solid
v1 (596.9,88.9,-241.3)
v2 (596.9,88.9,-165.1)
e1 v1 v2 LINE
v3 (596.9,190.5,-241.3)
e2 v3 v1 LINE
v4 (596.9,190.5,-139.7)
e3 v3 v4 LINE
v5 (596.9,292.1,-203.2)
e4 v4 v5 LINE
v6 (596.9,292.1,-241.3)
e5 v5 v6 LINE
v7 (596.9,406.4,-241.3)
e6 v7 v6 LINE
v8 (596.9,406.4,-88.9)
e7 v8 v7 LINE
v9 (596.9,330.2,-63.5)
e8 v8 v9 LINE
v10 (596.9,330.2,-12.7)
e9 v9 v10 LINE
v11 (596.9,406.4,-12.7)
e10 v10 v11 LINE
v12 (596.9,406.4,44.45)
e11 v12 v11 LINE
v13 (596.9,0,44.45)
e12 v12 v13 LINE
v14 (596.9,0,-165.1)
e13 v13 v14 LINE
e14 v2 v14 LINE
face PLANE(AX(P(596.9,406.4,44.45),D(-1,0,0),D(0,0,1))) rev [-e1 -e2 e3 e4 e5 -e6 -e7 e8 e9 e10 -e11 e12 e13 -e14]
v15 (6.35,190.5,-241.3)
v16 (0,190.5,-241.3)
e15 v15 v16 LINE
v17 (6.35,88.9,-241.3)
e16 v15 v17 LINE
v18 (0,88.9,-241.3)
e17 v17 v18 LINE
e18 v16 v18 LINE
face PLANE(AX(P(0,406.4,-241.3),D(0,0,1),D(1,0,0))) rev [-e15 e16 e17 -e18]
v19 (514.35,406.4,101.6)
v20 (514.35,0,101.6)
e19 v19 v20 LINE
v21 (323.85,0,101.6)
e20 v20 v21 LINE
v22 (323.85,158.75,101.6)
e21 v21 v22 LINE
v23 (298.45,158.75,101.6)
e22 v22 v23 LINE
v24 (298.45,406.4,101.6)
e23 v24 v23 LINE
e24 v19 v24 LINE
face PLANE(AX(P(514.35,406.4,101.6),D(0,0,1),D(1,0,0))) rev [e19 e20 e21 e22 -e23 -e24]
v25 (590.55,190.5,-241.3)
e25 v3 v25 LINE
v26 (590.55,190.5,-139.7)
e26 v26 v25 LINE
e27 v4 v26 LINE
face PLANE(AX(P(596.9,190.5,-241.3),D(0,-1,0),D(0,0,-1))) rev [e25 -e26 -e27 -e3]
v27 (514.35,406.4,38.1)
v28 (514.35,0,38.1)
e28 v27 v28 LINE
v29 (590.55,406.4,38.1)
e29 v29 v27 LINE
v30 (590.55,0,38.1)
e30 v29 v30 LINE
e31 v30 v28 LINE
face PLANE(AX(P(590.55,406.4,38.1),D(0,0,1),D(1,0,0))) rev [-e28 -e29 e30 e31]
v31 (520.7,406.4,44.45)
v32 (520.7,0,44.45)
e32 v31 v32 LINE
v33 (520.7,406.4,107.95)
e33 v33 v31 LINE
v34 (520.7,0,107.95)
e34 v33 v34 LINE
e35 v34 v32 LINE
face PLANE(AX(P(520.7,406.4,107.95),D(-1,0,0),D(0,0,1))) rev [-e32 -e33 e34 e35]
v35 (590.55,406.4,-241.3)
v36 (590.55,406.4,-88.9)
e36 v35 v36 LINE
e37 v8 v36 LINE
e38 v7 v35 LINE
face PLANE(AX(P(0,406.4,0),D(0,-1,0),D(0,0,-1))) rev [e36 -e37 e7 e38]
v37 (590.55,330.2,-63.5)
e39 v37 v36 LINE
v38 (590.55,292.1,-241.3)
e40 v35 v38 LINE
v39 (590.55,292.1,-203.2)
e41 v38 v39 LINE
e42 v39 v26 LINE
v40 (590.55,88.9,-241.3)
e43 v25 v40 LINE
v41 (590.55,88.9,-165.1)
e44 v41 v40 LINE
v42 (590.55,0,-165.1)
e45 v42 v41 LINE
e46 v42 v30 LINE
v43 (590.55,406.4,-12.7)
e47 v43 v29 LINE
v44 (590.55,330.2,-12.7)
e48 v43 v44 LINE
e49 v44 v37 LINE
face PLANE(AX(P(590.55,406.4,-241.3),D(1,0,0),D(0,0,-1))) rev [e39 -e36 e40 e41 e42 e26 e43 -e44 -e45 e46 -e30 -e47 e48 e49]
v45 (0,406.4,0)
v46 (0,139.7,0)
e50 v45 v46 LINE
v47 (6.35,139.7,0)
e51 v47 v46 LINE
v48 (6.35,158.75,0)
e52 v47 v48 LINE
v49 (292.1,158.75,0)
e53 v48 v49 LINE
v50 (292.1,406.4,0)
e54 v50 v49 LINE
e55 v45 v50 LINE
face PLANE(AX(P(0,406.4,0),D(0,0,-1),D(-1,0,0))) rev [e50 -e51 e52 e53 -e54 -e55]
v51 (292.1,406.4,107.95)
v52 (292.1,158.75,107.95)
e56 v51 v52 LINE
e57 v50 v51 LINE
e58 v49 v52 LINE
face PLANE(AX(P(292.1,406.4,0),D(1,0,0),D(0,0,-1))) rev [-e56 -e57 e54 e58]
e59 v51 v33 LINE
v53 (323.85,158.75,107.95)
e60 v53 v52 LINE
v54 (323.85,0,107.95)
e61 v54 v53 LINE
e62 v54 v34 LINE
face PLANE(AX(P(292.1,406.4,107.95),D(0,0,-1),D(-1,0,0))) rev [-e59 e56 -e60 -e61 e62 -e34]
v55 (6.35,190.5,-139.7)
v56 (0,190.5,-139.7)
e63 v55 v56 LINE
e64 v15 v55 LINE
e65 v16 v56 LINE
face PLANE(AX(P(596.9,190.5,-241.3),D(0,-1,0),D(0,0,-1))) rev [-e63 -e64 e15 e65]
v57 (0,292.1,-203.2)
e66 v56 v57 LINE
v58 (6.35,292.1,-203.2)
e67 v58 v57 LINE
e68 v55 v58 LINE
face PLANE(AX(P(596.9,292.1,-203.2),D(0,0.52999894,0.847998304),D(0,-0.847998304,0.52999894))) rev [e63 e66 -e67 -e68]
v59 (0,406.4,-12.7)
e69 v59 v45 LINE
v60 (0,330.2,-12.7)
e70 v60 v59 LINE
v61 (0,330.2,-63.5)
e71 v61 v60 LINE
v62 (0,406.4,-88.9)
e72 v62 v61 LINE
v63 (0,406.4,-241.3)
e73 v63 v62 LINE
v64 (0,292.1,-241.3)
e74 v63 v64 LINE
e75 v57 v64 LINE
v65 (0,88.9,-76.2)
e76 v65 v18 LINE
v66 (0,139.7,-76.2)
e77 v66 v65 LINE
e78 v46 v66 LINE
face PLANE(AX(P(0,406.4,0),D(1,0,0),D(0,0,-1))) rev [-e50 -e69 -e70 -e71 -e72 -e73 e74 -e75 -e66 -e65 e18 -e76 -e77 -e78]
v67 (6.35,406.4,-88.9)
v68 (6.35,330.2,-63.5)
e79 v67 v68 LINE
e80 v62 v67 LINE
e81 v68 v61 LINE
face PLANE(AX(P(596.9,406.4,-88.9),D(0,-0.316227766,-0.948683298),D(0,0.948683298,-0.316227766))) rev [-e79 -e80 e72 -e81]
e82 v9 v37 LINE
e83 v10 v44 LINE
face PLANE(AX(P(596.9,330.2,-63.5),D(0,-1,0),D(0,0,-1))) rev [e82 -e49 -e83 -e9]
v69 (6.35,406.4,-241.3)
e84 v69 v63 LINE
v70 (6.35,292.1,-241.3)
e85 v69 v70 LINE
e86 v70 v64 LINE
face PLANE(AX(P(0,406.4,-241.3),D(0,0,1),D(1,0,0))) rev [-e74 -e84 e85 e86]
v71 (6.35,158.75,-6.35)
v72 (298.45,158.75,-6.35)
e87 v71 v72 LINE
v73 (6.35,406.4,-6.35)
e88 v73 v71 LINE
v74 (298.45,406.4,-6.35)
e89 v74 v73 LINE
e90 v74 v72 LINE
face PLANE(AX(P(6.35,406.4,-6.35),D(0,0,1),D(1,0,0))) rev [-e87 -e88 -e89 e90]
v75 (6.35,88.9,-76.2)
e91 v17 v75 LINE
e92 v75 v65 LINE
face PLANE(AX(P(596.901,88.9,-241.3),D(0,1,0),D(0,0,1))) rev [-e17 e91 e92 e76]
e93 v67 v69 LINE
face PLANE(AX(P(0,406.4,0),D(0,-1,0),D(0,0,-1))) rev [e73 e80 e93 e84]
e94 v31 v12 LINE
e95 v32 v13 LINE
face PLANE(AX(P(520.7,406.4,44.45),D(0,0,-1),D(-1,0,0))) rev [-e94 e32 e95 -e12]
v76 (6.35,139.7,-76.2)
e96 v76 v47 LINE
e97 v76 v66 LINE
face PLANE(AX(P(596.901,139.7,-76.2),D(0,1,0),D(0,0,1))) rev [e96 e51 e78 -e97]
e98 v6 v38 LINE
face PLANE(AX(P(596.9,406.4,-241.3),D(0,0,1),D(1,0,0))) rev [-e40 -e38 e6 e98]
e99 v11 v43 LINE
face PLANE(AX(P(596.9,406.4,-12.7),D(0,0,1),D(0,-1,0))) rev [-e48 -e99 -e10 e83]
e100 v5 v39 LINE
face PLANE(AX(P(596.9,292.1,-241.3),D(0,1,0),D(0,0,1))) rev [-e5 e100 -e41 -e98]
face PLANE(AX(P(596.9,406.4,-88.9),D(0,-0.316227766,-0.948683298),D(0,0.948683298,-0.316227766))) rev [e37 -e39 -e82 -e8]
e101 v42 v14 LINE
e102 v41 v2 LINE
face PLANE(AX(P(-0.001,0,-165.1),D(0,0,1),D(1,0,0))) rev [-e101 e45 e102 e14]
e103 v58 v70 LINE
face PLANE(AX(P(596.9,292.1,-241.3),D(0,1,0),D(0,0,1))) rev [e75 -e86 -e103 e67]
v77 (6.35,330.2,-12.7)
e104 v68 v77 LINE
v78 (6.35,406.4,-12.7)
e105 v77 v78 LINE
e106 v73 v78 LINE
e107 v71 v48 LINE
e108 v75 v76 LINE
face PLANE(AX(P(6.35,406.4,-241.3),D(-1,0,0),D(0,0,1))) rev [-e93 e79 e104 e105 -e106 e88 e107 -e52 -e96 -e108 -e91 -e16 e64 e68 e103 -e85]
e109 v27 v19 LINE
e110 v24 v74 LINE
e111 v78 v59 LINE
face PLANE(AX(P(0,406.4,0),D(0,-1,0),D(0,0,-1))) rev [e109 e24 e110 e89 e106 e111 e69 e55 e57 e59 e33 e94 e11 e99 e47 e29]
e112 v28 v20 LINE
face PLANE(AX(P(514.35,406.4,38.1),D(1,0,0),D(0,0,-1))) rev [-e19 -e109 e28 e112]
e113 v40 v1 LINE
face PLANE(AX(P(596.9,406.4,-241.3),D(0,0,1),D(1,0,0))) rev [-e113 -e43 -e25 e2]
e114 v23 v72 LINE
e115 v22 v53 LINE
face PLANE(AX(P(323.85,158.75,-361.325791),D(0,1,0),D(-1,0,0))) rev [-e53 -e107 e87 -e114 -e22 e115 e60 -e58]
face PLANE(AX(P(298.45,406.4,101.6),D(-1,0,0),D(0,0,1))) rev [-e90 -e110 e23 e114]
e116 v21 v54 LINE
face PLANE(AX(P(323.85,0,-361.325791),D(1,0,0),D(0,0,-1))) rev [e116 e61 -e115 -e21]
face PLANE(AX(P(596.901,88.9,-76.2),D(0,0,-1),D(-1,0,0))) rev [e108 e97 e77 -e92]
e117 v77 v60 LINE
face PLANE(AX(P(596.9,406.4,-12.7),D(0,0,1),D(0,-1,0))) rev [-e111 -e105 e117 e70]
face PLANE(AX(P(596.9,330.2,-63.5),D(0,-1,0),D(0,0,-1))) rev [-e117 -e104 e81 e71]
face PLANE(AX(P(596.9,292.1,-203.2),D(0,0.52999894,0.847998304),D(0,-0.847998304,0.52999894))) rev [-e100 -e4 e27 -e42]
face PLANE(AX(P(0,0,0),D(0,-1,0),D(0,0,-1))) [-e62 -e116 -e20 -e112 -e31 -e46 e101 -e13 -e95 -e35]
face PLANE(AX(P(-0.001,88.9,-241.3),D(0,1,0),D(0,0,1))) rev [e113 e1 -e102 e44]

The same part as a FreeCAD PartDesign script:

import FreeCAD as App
import Part
import Sketcher

V = App.Vector
Q = App.Units.Quantity


def add_polygon(sketch, points):
    """Adds a closed chain of lines whose ends are joined by coincident constraints."""
    first, n = sketch.GeometryCount, len(points)
    for a, b in zip(points, points[1:] + points[:1]):
        sketch.addGeometry(Part.LineSegment(App.Vector(*a, 0), App.Vector(*b, 0)), False)
    for i in range(n):
        sketch.addConstraint(Sketcher.Constraint("Coincident", first + i, 2, first + (i + 1) % n, 1))

doc = App.newDocument("Part")
params = doc.addObject("Spreadsheet::Sheet", "Params")
for row, (alias, value) in enumerate([
    ("sketch1_width", "9 in"),
    ("sketch1_width2", "3 in"),
    ("sketch1_height", "11 in"),
    ("sketch1_width3", "11.5 in"),
    ("sketch1_width4", "8.5 in"),
    ("pad1_length", "16 in"),
    ("sketch2_width", "12.5 in"),
    ("sketch2_height", "6.25 in"),
    ("pocket1_length", "4.5 in"),
    ("sketch3_width", "2 in"),
    ("sketch3_height", "3 in"),
    ("sketch3_width2", "3.5 in"),
    ("sketch3_height2", "6.5 in"),
    ("sketch4_height", "3 in"),
    ("sketch4_width", "3.5 in"),
    ("sketch5_width", "4 in"),
    ("sketch5_width2", "3 in"),
    ("sketch5_height", "2 in"),
    ("sketch5_height2", "1.5 in"),
], start=1):
    params.set(f"A{row}", alias)
    params.set(f"B{row}", "=" + value)
    params.setAlias(f"B{row}", alias)

body = doc.addObject("PartDesign::Body", "Body")

sketch1 = doc.addObject("Sketcher::SketchObject", "Sketch")
body.addObject(sketch1)
sketch1.AttachmentSupport = (doc.XZ_Plane, [""])
sketch1.MapMode = "FlatFace"
add_polygon(sketch1, [(0, -241.3), (0, 0), (292.1, 0), (292.1, 107.95), (520.7, 107.95), (520.7, 44.45), (596.9, 44.45), (596.9, -241.3), (590.55, -241.3), (590.55, 38.1), (514.35, 38.1), (514.35, 101.6), (298.45, 101.6), (298.45, -6.35), (6.35, -6.35), (6.35, -241.3)])
sketch1.addConstraint(Sketcher.Constraint("Vertical", 0))
sketch1.addConstraint(Sketcher.Constraint("Horizontal", 1))
sketch1.addConstraint(Sketcher.Constraint("Vertical", 2))
sketch1.addConstraint(Sketcher.Constraint("Horizontal", 3))
sketch1.addConstraint(Sketcher.Constraint("Vertical", 4))
sketch1.addConstraint(Sketcher.Constraint("Horizontal", 5))
sketch1.addConstraint(Sketcher.Constraint("Vertical", 6))
sketch1.addConstraint(Sketcher.Constraint("Horizontal", 7))
sketch1.addConstraint(Sketcher.Constraint("Vertical", 8))
sketch1.addConstraint(Sketcher.Constraint("Horizontal", 9))
sketch1.addConstraint(Sketcher.Constraint("Vertical", 10))
sketch1.addConstraint(Sketcher.Constraint("Horizontal", 11))
sketch1.addConstraint(Sketcher.Constraint("Vertical", 12))
sketch1.addConstraint(Sketcher.Constraint("Horizontal", 13))
sketch1.addConstraint(Sketcher.Constraint("Vertical", 14))
sketch1.addConstraint(Sketcher.Constraint("Horizontal", 15))
sketch1.addConstraint(Sketcher.Constraint("Coincident", 0, 2, -1, 1))
sketch1.addConstraint(Sketcher.Constraint("Horizontal", 7, 2, 14, 2))
sketch1.addConstraint(Sketcher.Constraint("Equal", 5, 9))
sketch1.addConstraint(Sketcher.Constraint("Equal", 1, 13))
sketch1.addConstraint(Sketcher.Constraint("Equal", 7, 15))
sketch1.addConstraint(Sketcher.Constraint("Equal", 4, 10))
sketch1.addConstraint(Sketcher.Constraint("Equal", 2, 12))
sketch1.addConstraint(Sketcher.Constraint("DistanceX", 3, 1, 3, 2, Q("9 in")))
sketch1.addConstraint(Sketcher.Constraint("DistanceX", 5, 1, 5, 2, Q("3 in")))
sketch1.addConstraint(Sketcher.Constraint("DistanceY", 8, 1, 8, 2, Q("11 in")))
sketch1.addConstraint(Sketcher.Constraint("DistanceX", 1, 1, 1, 2, Q("11.5 in")))
sketch1.addConstraint(Sketcher.Constraint("DistanceX", 11, 2, 11, 1, Q("8.5 in")))
sketch1.addConstraint(Sketcher.Constraint("DistanceY", 0, 1, 0, 2, Q("9.5 in")))
sketch1.addConstraint(Sketcher.Constraint("DistanceY", 4, 2, 4, 1, Q("2.5 in")))
sketch1.addConstraint(Sketcher.Constraint("DistanceY", 12, 2, 4, 2, Q("2 in")))
sketch1.setExpression("Constraints[39]", "Params.sketch1_width")
sketch1.setExpression("Constraints[40]", "Params.sketch1_width2")
sketch1.setExpression("Constraints[41]", "Params.sketch1_height")
sketch1.setExpression("Constraints[42]", "Params.sketch1_width3")
sketch1.setExpression("Constraints[43]", "Params.sketch1_width4")
pad1 = doc.addObject("PartDesign::Pad", "Pad")
body.addObject(pad1)
pad1.Profile = sketch1
pad1.setExpression("Length", "Params.pad1_length")
pad1.Reversed = True

sketch2 = doc.addObject("Sketcher::SketchObject", "Sketch001")
body.addObject(sketch2)
sketch2.AttachmentSupport = (doc.XY_Plane, [""])
sketch2.MapMode = "FlatFace"
sketch2.AttachmentOffset = App.Placement(V(0, 0, 4.25 * 25.4), App.Rotation())
add_polygon(sketch2, [(6.35, 158.75), (6.35, 0), (323.85, 0), (323.85, 158.75)])
sketch2.addConstraint(Sketcher.Constraint("Vertical", 0))
sketch2.addConstraint(Sketcher.Constraint("Horizontal", 1))
sketch2.addConstraint(Sketcher.Constraint("Vertical", 2))
sketch2.addConstraint(Sketcher.Constraint("Horizontal", 3))
sketch2.addConstraint(Sketcher.Constraint("PointOnObject", 0, 2, -1))
sketch2.addConstraint(Sketcher.Constraint("DistanceX", 1, 1, 1, 2, Q("12.5 in")))
sketch2.addConstraint(Sketcher.Constraint("DistanceY", 0, 2, 0, 1, Q("6.25 in")))
sketch2.addConstraint(Sketcher.Constraint("DistanceX", -1, 1, 0, 2, Q("0.25 in")))
sketch2.setExpression("Constraints[9]", "Params.sketch2_width")
sketch2.setExpression("Constraints[10]", "Params.sketch2_height")
pocket1 = doc.addObject("PartDesign::Pocket", "Pocket")
body.addObject(pocket1)
pocket1.Profile = sketch2
pocket1.setExpression("Length", "Params.pocket1_length")

sketch3 = doc.addObject("Sketcher::SketchObject", "Sketch002")
body.addObject(sketch3)
sketch3.AttachmentSupport = (doc.YZ_Plane, [""])
sketch3.MapMode = "FlatFace"
add_polygon(sketch3, [(139.7, -76.2), (88.9, -76.2), (88.9, -241.3), (0, -241.3), (0, 0), (139.7, 0)])
sketch3.addConstraint(Sketcher.Constraint("Horizontal", 0))
sketch3.addConstraint(Sketcher.Constraint("Vertical", 1))
sketch3.addConstraint(Sketcher.Constraint("Horizontal", 2))
sketch3.addConstraint(Sketcher.Constraint("Vertical", 3))
sketch3.addConstraint(Sketcher.Constraint("Horizontal", 4))
sketch3.addConstraint(Sketcher.Constraint("Vertical", 5))
sketch3.addConstraint(Sketcher.Constraint("Coincident", 3, 2, -1, 1))
sketch3.addConstraint(Sketcher.Constraint("DistanceX", 0, 2, 0, 1, Q("2 in")))
sketch3.addConstraint(Sketcher.Constraint("DistanceY", 5, 2, 5, 1, Q("3 in")))
sketch3.addConstraint(Sketcher.Constraint("DistanceX", 2, 2, 2, 1, Q("3.5 in")))
sketch3.addConstraint(Sketcher.Constraint("DistanceY", 1, 2, 1, 1, Q("6.5 in")))
sketch3.setExpression("Constraints[13]", "Params.sketch3_width")
sketch3.setExpression("Constraints[14]", "Params.sketch3_height")
sketch3.setExpression("Constraints[15]", "Params.sketch3_width2")
sketch3.setExpression("Constraints[16]", "Params.sketch3_height2")
pocket2 = doc.addObject("PartDesign::Pocket", "Pocket001")
body.addObject(pocket2)
pocket2.Profile = sketch3
pocket2.Type = "UpToFirst"
pocket2.Reversed = True

sketch4 = doc.addObject("Sketcher::SketchObject", "Sketch003")
body.addObject(sketch4)
sketch4.AttachmentSupport = (doc.YZ_Plane, [""])
sketch4.MapMode = "FlatFace"
sketch4.AttachmentOffset = App.Placement(V(0, 0, 23.5 * 25.4), App.Rotation())
add_polygon(sketch4, [(88.9, -165.1), (0, -165.1), (0, -241.3), (88.9, -241.3)])
sketch4.addConstraint(Sketcher.Constraint("Horizontal", 0))
sketch4.addConstraint(Sketcher.Constraint("Vertical", 1))
sketch4.addConstraint(Sketcher.Constraint("Horizontal", 2))
sketch4.addConstraint(Sketcher.Constraint("Vertical", 3))
sketch4.addConstraint(Sketcher.Constraint("PointOnObject", 0, 2, -2))
sketch4.addConstraint(Sketcher.Constraint("DistanceY", 1, 2, 1, 1, Q("3 in")))
sketch4.addConstraint(Sketcher.Constraint("DistanceX", 0, 2, 0, 1, Q("3.5 in")))
sketch4.addConstraint(Sketcher.Constraint("DistanceY", 0, 2, -1, 1, Q("6.5 in")))
sketch4.setExpression("Constraints[9]", "Params.sketch4_height")
sketch4.setExpression("Constraints[10]", "Params.sketch4_width")
pocket3 = doc.addObject("PartDesign::Pocket", "Pocket002")
body.addObject(pocket3)
pocket3.Profile = sketch4
pocket3.Type = "UpToFirst"

sketch5 = doc.addObject("Sketcher::SketchObject", "Sketch004")
body.addObject(sketch5)
sketch5.AttachmentSupport = (doc.YZ_Plane, [""])
sketch5.MapMode = "FlatFace"
add_polygon(sketch5, [(292.1, -203.2), (292.1, -241.3), (190.5, -241.3), (190.5, -139.7)])
add_polygon(sketch5, [(406.4, -12.7), (406.4, -88.9), (330.2, -63.5), (330.2, -12.7)])
sketch5.addConstraint(Sketcher.Constraint("Vertical", 0))
sketch5.addConstraint(Sketcher.Constraint("Horizontal", 1))
sketch5.addConstraint(Sketcher.Constraint("Vertical", 2))
sketch5.addConstraint(Sketcher.Constraint("Vertical", 4))
sketch5.addConstraint(Sketcher.Constraint("Vertical", 6))
sketch5.addConstraint(Sketcher.Constraint("Horizontal", 7))
sketch5.addConstraint(Sketcher.Constraint("Equal", 1, 2))
sketch5.addConstraint(Sketcher.Constraint("Equal", 7, 4))
sketch5.addConstraint(Sketcher.Constraint("DistanceX", 1, 2, 1, 1, Q("4 in")))
sketch5.addConstraint(Sketcher.Constraint("DistanceX", 7, 1, 7, 2, Q("3 in")))
sketch5.addConstraint(Sketcher.Constraint("DistanceY", 6, 1, 6, 2, Q("2 in")))
sketch5.addConstraint(Sketcher.Constraint("DistanceY", 0, 2, 0, 1, Q("1.5 in")))
sketch5.addConstraint(Sketcher.Constraint("DistanceY", 3, 2, -1, 1, Q("8 in")))
sketch5.addConstraint(Sketcher.Constraint("DistanceX", -1, 1, 4, 2, Q("16 in")))
sketch5.addConstraint(Sketcher.Constraint("DistanceY", 0, 2, 4, 2, Q("6 in")))
sketch5.addConstraint(Sketcher.Constraint("DistanceX", -1, 1, 0, 2, Q("11.5 in")))
sketch5.setExpression("Constraints[16]", "Params.sketch5_width")
sketch5.setExpression("Constraints[17]", "Params.sketch5_width2")
sketch5.setExpression("Constraints[18]", "Params.sketch5_height")
sketch5.setExpression("Constraints[19]", "Params.sketch5_height2")
pocket4 = doc.addObject("PartDesign::Pocket", "Pocket003")
body.addObject(pocket4)
pocket4.Profile = sketch5
pocket4.Type = "ThroughAll"
pocket4.Reversed = True

doc.recompute()
